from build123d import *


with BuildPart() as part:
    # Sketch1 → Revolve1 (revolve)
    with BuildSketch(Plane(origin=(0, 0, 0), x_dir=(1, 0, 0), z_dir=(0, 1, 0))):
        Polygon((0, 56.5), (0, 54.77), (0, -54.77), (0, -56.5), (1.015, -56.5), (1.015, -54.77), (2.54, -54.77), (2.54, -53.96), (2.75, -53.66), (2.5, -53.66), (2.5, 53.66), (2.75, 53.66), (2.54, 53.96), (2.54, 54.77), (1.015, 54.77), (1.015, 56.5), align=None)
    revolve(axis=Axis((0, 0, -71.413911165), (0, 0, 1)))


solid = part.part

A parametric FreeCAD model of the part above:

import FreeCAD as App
import Part
import Sketcher

doc = App.newDocument("Part")
params = doc.addObject("Spreadsheet::Sheet", "Params")
for row, (alias, value) in enumerate([
    ("sketch1_height", "113 mm"),
    ("sketch1_width", "0.25 mm"),
    ("sketch1_height2", "1.73 mm"),
    ("sketch1_height3", "0.81 mm"),
    ("sketch1_height4", "107.32 mm"),
    ("revolution_angle", "360 deg"),
], start=1):
    params.set(f"A{row}", alias)
    params.set(f"B{row}", "=" + value)
    params.setAlias(f"B{row}", alias)

body = doc.addObject("PartDesign::Body", "Body")

# Sketch on XZ plane
sketch1 = body.newObject("Sketcher::SketchObject", "Sketch")
sketch1.AttachmentSupport = (doc.getObject("XZ_Plane"), [""])
sketch1.MapMode = "FlatFace"
sketch1.addGeometry([
    Part.LineSegment(App.Vector(0, -56.5, 0), App.Vector(0, 56.5, 0)),  # 0
    Part.LineSegment(App.Vector(0, 56.5, 0), App.Vector(1.01, 56.5, 0)),  # 1
    Part.LineSegment(App.Vector(1.01, 56.5, 0), App.Vector(1.01, 54.77, 0)),  # 2
    Part.LineSegment(App.Vector(1.01, 54.77, 0), App.Vector(2.54, 54.77, 0)),  # 3
    Part.LineSegment(App.Vector(2.54, 54.77, 0), App.Vector(2.54, 53.96, 0)),  # 4
    Part.LineSegment(App.Vector(2.54, 53.96, 0), App.Vector(2.75, 53.66, 0)),  # 5
    Part.LineSegment(App.Vector(2.75, 53.66, 0), App.Vector(2.5, 53.66, 0)),  # 6
    Part.LineSegment(App.Vector(2.5, 53.66, 0), App.Vector(2.5, -53.66, 0)),  # 7
    Part.LineSegment(App.Vector(2.5, -53.66, 0), App.Vector(2.75, -53.66, 0)),  # 8
    Part.LineSegment(App.Vector(2.75, -53.66, 0), App.Vector(2.54, -53.96, 0)),  # 9
    Part.LineSegment(App.Vector(2.54, -53.96, 0), App.Vector(2.54, -54.77, 0)),  # 10
    Part.LineSegment(App.Vector(2.54, -54.77, 0), App.Vector(1.01, -54.77, 0)),  # 11
    Part.LineSegment(App.Vector(1.01, -54.77, 0), App.Vector(1.01, -56.5, 0)),  # 12
    Part.LineSegment(App.Vector(1.01, -56.5, 0), App.Vector(0, -56.5, 0)),  # 13
], False)
sketch1.addConstraint([
    Sketcher.Constraint("Coincident", 0, 2, 1, 1),
    Sketcher.Constraint("Coincident", 1, 2, 2, 1),
    Sketcher.Constraint("Coincident", 2, 2, 3, 1),
    Sketcher.Constraint("Coincident", 3, 2, 4, 1),
    Sketcher.Constraint("Coincident", 4, 2, 5, 1),
    Sketcher.Constraint("Coincident", 5, 2, 6, 1),
    Sketcher.Constraint("Coincident", 6, 2, 7, 1),
    Sketcher.Constraint("Coincident", 7, 2, 8, 1),
    Sketcher.Constraint("Coincident", 8, 2, 9, 1),
    Sketcher.Constraint("Coincident", 9, 2, 10, 1),
    Sketcher.Constraint("Coincident", 10, 2, 11, 1),
    Sketcher.Constraint("Coincident", 11, 2, 12, 1),
    Sketcher.Constraint("Coincident", 12, 2, 13, 1),
    Sketcher.Constraint("Coincident", 13, 2, 0, 1),
    Sketcher.Constraint("Vertical", 0),
    Sketcher.Constraint("Horizontal", 1),
    Sketcher.Constraint("Vertical", 2),
    Sketcher.Constraint("Horizontal", 3),
    Sketcher.Constraint("Vertical", 4),
    Sketcher.Constraint("Horizontal", 6),
    Sketcher.Constraint("Vertical", 7),
    Sketcher.Constraint("Horizontal", 8),
    Sketcher.Constraint("Vertical", 10),
    Sketcher.Constraint("Horizontal", 11),
    Sketcher.Constraint("Vertical", 12),
    Sketcher.Constraint("Horizontal", 13),
    Sketcher.Constraint("Symmetric", 0, 2, 13, 2, -1, 1),
    Sketcher.Constraint("Symmetric", 5, 2, 8, 2, -1),
    Sketcher.Constraint("Symmetric", 4, 2, 9, 2, -1),
    Sketcher.Constraint("Symmetric", 2, 2, 11, 2, -1),
    Sketcher.Constraint("DistanceY", 0, 1, 0, 2, 113.0),
    Sketcher.Constraint("DistanceX", 6, 2, 6, 1, 0.25),
    Sketcher.Constraint("DistanceY", 2, 2, 2, 1, 1.73),
    Sketcher.Constraint("DistanceY", 4, 2, 4, 1, 0.81),
    Sketcher.Constraint("DistanceY", 7, 2, 7, 1, 107.32),
    Sketcher.Constraint("DistanceX", -1, 1, 6, 2, 2.5),
    Sketcher.Constraint("DistanceX", 1, 1, 1, 2, 1.015),
    Sketcher.Constraint("DistanceX", 3, 1, 3, 2, 1.525),
])
sketch1.setExpression("Constraints[30]", "Params.sketch1_height")
sketch1.setExpression("Constraints[31]", "Params.sketch1_width")
sketch1.setExpression("Constraints[32]", "Params.sketch1_height2")
sketch1.setExpression("Constraints[33]", "Params.sketch1_height3")
sketch1.setExpression("Constraints[34]", "Params.sketch1_height4")
revolution = body.newObject("PartDesign::Revolution", "Revolution")
revolution.Profile = sketch1
revolution.ReferenceAxis = (sketch1, ["V_Axis"])
revolution.setExpression("Angle", "Params.revolution_angle")

doc.recompute()
